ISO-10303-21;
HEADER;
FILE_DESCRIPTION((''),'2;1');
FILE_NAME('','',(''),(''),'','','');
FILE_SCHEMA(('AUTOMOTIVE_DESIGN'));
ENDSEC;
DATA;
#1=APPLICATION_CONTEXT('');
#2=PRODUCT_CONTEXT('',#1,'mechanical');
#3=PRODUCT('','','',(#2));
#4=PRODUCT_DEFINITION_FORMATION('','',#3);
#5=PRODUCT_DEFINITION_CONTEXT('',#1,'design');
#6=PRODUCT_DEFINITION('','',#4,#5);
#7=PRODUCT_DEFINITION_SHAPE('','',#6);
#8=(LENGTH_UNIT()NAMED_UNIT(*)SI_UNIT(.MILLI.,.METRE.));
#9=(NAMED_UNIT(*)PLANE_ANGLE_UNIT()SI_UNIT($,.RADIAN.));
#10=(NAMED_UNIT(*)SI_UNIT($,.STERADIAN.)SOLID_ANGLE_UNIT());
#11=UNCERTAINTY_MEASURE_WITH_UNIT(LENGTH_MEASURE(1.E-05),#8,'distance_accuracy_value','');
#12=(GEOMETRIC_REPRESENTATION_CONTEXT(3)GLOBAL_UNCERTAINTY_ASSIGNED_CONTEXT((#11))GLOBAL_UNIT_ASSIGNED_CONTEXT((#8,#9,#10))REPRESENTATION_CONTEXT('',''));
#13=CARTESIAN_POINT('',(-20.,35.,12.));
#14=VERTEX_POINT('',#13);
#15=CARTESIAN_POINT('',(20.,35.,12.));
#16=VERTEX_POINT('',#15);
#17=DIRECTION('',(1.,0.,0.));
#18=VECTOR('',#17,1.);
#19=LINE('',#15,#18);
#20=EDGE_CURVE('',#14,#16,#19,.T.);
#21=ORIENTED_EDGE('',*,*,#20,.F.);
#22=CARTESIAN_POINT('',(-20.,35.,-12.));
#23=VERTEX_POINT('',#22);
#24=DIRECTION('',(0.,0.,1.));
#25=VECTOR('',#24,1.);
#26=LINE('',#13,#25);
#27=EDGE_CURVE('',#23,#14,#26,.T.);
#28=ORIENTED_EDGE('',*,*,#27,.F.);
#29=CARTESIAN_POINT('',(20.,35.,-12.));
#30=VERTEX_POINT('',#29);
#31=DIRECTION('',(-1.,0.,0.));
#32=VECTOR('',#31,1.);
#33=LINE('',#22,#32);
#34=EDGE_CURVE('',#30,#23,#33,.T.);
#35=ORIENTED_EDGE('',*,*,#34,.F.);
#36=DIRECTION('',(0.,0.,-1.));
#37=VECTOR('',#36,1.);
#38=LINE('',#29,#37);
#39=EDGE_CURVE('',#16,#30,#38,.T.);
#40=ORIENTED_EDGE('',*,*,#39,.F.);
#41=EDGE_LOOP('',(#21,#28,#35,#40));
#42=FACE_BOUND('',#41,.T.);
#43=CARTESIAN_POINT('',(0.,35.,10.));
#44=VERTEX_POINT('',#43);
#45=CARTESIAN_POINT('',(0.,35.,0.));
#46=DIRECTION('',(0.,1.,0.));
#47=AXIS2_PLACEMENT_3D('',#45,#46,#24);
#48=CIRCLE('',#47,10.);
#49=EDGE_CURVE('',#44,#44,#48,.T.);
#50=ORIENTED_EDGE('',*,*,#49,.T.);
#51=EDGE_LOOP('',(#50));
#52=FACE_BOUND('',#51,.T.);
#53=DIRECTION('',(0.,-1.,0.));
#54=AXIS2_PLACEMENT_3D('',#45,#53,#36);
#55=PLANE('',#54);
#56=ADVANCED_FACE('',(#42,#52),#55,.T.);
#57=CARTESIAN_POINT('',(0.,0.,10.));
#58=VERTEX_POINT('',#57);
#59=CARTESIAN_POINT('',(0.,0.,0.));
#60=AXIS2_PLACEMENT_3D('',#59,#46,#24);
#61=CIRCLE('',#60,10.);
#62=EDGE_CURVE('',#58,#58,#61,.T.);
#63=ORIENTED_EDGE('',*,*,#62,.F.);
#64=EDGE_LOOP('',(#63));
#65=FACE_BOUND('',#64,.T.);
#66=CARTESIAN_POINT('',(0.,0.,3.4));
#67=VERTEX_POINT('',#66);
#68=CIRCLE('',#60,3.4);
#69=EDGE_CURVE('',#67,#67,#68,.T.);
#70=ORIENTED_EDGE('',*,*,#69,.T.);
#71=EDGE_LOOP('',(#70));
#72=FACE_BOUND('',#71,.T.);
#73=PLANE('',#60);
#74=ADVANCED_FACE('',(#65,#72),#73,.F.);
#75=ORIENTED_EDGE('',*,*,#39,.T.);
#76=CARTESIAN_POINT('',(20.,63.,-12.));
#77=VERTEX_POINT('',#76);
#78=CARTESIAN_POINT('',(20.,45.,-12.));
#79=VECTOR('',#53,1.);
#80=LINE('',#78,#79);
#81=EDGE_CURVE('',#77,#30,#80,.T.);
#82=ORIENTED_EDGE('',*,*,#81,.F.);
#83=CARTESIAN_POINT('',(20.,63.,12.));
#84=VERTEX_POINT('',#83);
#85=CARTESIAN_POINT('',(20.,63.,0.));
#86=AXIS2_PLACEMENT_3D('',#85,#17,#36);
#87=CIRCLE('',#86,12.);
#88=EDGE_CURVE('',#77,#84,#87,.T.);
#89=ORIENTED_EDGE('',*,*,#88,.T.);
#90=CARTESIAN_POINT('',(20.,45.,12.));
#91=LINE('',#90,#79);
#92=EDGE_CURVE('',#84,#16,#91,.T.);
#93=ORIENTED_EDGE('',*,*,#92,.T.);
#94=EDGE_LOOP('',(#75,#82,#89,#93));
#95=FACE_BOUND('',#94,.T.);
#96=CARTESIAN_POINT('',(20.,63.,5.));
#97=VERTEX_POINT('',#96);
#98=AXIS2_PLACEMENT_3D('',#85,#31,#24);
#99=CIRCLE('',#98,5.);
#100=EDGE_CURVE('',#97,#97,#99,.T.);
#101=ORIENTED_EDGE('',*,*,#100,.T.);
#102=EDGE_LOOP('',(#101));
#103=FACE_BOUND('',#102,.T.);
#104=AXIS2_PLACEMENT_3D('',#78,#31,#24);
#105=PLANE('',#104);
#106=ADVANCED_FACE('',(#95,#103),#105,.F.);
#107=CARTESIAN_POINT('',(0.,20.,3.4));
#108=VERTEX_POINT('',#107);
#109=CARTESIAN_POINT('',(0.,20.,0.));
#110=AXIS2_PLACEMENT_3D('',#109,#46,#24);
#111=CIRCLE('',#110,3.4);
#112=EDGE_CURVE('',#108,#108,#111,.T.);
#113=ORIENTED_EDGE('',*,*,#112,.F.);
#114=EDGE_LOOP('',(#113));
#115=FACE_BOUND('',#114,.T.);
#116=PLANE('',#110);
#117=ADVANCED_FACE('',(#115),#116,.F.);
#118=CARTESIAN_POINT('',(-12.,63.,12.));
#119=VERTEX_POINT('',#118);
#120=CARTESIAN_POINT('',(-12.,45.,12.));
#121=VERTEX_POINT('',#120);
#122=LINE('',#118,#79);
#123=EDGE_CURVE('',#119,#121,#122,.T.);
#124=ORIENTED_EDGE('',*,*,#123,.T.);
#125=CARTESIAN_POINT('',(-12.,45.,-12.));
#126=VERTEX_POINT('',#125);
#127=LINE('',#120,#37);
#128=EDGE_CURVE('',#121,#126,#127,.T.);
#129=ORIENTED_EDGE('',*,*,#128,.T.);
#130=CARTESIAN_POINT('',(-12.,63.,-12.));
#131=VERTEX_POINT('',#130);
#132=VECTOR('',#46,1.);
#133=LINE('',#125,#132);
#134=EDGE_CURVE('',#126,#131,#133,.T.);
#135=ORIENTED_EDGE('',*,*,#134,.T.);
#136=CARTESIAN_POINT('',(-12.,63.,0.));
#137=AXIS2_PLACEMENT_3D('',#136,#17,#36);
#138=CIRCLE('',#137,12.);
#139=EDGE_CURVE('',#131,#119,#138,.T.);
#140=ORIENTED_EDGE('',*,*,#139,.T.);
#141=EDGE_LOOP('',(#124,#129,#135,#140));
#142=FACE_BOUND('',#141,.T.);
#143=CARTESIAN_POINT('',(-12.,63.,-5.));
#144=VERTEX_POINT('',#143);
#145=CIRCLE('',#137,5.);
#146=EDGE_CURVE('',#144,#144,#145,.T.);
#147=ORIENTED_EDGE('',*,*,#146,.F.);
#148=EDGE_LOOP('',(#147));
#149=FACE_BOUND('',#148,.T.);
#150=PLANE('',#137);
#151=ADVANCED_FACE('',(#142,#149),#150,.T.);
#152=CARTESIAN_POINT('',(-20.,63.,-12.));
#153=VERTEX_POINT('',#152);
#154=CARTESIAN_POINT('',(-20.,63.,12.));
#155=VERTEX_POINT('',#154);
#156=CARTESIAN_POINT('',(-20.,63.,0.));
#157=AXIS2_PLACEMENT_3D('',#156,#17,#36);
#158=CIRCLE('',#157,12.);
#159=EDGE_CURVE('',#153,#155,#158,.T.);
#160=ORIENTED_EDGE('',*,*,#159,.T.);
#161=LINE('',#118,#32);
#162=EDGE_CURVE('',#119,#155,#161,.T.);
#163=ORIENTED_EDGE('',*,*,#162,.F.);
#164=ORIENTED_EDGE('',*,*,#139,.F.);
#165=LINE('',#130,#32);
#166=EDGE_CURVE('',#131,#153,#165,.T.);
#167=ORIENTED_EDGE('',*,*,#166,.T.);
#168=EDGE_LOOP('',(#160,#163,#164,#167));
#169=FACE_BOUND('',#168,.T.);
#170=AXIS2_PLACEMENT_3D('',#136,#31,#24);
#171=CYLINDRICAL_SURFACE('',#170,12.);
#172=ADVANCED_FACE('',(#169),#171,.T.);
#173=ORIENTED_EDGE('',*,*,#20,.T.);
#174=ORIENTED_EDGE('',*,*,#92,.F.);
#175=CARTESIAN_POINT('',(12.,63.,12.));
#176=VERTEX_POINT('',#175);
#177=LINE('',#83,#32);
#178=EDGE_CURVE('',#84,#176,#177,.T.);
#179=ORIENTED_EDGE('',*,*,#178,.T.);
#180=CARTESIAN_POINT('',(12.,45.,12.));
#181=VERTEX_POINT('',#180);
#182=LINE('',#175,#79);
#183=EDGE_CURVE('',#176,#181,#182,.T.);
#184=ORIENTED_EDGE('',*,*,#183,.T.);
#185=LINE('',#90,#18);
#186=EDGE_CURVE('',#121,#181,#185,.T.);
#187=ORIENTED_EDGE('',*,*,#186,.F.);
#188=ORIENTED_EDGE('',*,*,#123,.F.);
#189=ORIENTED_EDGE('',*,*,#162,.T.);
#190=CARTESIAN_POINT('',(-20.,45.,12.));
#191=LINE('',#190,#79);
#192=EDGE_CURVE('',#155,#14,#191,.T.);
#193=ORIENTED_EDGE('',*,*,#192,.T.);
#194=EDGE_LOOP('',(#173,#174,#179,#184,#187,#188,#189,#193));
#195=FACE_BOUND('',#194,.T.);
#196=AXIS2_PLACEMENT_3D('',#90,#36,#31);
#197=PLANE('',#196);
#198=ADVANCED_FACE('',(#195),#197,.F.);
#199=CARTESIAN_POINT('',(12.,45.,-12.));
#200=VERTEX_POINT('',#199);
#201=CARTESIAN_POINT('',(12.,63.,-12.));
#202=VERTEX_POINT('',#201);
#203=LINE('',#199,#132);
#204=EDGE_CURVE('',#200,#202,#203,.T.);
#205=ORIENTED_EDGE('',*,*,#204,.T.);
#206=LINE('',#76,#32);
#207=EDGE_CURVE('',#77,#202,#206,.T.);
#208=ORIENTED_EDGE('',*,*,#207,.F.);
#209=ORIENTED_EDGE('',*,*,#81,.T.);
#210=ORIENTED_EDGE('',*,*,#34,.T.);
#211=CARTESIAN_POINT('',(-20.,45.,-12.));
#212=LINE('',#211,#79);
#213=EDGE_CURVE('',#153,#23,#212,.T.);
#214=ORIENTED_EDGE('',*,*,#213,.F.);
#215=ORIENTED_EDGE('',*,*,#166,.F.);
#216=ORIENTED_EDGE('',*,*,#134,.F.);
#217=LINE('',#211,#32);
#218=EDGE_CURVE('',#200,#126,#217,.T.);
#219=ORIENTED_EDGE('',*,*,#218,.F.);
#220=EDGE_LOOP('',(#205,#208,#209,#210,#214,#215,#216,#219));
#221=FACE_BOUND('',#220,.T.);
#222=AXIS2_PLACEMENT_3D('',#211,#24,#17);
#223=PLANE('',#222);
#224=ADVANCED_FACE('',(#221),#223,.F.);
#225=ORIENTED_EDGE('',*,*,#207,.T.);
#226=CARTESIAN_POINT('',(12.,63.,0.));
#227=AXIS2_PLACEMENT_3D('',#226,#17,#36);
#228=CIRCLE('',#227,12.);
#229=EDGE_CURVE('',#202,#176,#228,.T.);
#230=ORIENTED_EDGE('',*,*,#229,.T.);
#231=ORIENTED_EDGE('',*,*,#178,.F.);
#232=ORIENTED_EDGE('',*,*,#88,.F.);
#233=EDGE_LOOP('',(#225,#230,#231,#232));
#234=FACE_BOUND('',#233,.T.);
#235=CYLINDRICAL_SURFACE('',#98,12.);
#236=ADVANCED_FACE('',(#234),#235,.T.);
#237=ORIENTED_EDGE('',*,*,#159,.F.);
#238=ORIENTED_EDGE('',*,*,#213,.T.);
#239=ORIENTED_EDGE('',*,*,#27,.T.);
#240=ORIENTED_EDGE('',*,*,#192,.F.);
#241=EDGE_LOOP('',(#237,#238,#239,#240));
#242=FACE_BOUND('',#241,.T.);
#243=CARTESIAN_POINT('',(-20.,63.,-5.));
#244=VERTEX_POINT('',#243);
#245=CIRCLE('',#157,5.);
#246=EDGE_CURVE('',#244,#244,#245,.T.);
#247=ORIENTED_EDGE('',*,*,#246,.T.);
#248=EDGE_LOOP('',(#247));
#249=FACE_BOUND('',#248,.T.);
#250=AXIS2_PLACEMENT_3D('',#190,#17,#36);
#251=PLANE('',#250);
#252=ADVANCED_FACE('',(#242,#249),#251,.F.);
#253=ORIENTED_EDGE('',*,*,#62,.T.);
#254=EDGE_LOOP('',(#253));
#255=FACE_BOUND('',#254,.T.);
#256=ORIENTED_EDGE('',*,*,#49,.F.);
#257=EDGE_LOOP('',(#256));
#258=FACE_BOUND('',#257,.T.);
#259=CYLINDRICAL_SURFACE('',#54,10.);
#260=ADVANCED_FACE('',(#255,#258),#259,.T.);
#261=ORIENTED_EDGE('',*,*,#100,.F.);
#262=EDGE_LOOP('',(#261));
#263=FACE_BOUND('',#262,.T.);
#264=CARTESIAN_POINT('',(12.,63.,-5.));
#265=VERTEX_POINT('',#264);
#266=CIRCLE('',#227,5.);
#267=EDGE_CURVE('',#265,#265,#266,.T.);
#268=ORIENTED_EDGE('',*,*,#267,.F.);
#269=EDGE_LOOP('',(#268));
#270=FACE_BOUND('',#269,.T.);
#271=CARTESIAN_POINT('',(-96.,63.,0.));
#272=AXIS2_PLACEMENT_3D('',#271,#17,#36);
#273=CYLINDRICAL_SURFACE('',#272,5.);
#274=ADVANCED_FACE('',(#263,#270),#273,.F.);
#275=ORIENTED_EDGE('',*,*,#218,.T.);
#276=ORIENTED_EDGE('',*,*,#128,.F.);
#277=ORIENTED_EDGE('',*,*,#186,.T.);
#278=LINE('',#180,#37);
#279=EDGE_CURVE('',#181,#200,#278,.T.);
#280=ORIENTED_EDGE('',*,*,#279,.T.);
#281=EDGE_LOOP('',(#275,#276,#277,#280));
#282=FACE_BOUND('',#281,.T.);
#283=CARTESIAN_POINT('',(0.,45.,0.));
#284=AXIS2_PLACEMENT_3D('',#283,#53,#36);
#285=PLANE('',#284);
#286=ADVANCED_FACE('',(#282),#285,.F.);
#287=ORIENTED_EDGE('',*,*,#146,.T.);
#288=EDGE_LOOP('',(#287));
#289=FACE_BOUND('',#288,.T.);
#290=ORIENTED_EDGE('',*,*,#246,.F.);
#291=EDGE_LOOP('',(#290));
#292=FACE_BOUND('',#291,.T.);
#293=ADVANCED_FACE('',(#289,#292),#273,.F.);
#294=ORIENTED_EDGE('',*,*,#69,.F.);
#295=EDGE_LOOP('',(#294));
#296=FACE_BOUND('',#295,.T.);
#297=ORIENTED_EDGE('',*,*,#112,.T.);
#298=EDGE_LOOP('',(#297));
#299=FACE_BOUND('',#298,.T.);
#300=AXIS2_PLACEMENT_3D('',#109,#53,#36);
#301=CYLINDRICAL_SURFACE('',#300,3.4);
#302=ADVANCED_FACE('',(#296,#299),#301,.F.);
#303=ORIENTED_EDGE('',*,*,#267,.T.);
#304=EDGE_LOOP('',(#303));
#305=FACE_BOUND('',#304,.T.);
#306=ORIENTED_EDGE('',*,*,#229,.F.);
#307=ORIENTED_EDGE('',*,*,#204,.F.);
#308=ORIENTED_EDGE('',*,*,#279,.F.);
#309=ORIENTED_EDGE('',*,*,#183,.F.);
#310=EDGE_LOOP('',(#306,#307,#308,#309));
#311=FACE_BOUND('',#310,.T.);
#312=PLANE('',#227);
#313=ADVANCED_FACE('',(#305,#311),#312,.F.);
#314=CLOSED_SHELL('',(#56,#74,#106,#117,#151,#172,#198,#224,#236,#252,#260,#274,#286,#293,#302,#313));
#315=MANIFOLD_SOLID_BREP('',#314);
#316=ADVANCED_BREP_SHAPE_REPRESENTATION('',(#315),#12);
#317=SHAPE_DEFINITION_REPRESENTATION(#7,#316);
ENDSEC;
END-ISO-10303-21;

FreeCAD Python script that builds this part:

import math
import FreeCAD as App
import Part
import Sketcher
from FreeCAD import Vector


def add_polygon(sketch, points):
    """Adds a closed chain of lines whose ends are joined by coincident constraints."""
    first, n = sketch.GeometryCount, len(points)
    for a, b in zip(points, points[1:] + points[:1]):
        sketch.addGeometry(Part.LineSegment(App.Vector(*a, 0), App.Vector(*b, 0)), False)
    for i in range(n):
        sketch.addConstraint(Sketcher.Constraint("Coincident", first + i, 2, first + (i + 1) % n, 1))

doc = App.newDocument("Part")
body = doc.addObject("PartDesign::Body", "Body")

# Sketch on XZ plane
sketch1 = doc.addObject("Sketcher::SketchObject", "Sketch")
body.addObject(sketch1)
sketch1.AttachmentSupport = (doc.XZ_Plane, [""])
sketch1.MapMode = "FlatFace"
sketch1.addGeometry(Part.Circle(Vector(0, 0, 0), Vector(0, 0, 1), 10), False)
sketch1.addConstraint([
    Sketcher.Constraint("Coincident", 0, 3, -1, 1),
    Sketcher.Constraint("Diameter", 0, 20.0),
])
pad1 = doc.addObject("PartDesign::Pad", "Pad")
body.addObject(pad1)
pad1.Profile = sketch1
pad1.Length = 35
pad1.Reversed = True

# Sketch on XZ plane
sketch2 = doc.addObject("Sketcher::SketchObject", "Sketch001")
body.addObject(sketch2)
sketch2.AttachmentSupport = (doc.XZ_Plane, [""])
sketch2.MapMode = "FlatFace"
sketch2.AttachmentOffset = App.Placement(Vector(0, 0, -35), App.Rotation())
add_polygon(sketch2, [(-20, -12), (-20, 12), (20, 12), (20, -12)])  # lines 0-3
sketch2.addConstraint([
    Sketcher.Constraint("Vertical", 0),
    Sketcher.Constraint("Horizontal", 1),
    Sketcher.Constraint("Vertical", 2),
    Sketcher.Constraint("Horizontal", 3),
    Sketcher.Constraint("Symmetric", 0, 2, 2, 2, -1, 1),
    Sketcher.Constraint("DistanceX", 1, 1, 1, 2, 40.0),
    Sketcher.Constraint("DistanceY", 0, 1, 0, 2, 24.0),
])
pad2 = doc.addObject("PartDesign::Pad", "Pad001")
body.addObject(pad2)
pad2.Profile = sketch2
pad2.Length = 10
pad2.Reversed = True

# Sketch on YZ plane
sketch3 = doc.addObject("Sketcher::SketchObject", "Sketch002")
body.addObject(sketch3)
sketch3.AttachmentSupport = (doc.YZ_Plane, [""])
sketch3.MapMode = "FlatFace"
sketch3.AttachmentOffset = App.Placement(Vector(0, 0, 12), App.Rotation())
sketch3.addGeometry([
    Part.LineSegment(Vector(45, -12, 0), Vector(63, -12, 0)),
    Part.ArcOfCircle(Part.Circle(Vector(63, 0, 0), Vector(0, 0, 1), 12), math.radians(-90), math.radians(90)),
    Part.LineSegment(Vector(63, 12, 0), Vector(45, 12, 0)),
    Part.LineSegment(Vector(45, 12, 0), Vector(45, -12, 0)),
], False)
sketch3.addConstraint([
    Sketcher.Constraint("Tangent", 0, 2, 1, 1),
    Sketcher.Constraint("Tangent", 1, 2, 2, 1),
    Sketcher.Constraint("Coincident", 2, 2, 3, 1),
    Sketcher.Constraint("Coincident", 3, 2, 0, 1),
    Sketcher.Constraint("Horizontal", 0),
    Sketcher.Constraint("Horizontal", 2),
    Sketcher.Constraint("Vertical", 3),
    Sketcher.Constraint("PointOnObject", 1, 3, -1),
    Sketcher.Constraint("Radius", 1, 12.0),
    Sketcher.Constraint("DistanceX", 0, 1, 0, 2, 18.0),
    Sketcher.Constraint("DistanceX", -1, 1, 1, 3, 63.0),
])
pad3 = doc.addObject("PartDesign::Pad", "Pad002")
body.addObject(pad3)
pad3.Profile = sketch3
pad3.Length = 8

# Sketch on YZ plane
sketch4 = doc.addObject("Sketcher::SketchObject", "Sketch003")
body.addObject(sketch4)
sketch4.AttachmentSupport = (doc.YZ_Plane, [""])
sketch4.MapMode = "FlatFace"
sketch4.AttachmentOffset = App.Placement(Vector(0, 0, -20), App.Rotation())
sketch4.addGeometry([
    Part.LineSegment(Vector(45, -12, 0), Vector(63, -12, 0)),
    Part.ArcOfCircle(Part.Circle(Vector(63, 0, 0), Vector(0, 0, 1), 12), math.radians(-90), math.radians(90)),
    Part.LineSegment(Vector(63, 12, 0), Vector(45, 12, 0)),
    Part.LineSegment(Vector(45, 12, 0), Vector(45, -12, 0)),
], False)
sketch4.addConstraint([
    Sketcher.Constraint("Tangent", 0, 2, 1, 1),
    Sketcher.Constraint("Tangent", 1, 2, 2, 1),
    Sketcher.Constraint("Coincident", 2, 2, 3, 1),
    Sketcher.Constraint("Coincident", 3, 2, 0, 1),
    Sketcher.Constraint("Horizontal", 0),
    Sketcher.Constraint("Horizontal", 2),
    Sketcher.Constraint("Vertical", 3),
    Sketcher.Constraint("PointOnObject", 1, 3, -1),
    Sketcher.Constraint("Radius", 1, 12.0),
    Sketcher.Constraint("DistanceX", 0, 1, 0, 2, 18.0),
    Sketcher.Constraint("DistanceX", -1, 1, 1, 3, 63.0),
])
pad4 = doc.addObject("PartDesign::Pad", "Pad003")
body.addObject(pad4)
pad4.Profile = sketch4
pad4.Length = 8

# Sketch on YZ plane
sketch5 = doc.addObject("Sketcher::SketchObject", "Sketch004")
body.addObject(sketch5)
sketch5.AttachmentSupport = (doc.YZ_Plane, [""])
sketch5.MapMode = "FlatFace"
sketch5.AttachmentOffset = App.Placement(Vector(0, 0, -20), App.Rotation())
sketch5.addGeometry(Part.Circle(Vector(63, 0, 0), Vector(0, 0, 1), 5), False)
sketch5.addConstraint([
    Sketcher.Constraint("PointOnObject", 0, 3, -1),
    Sketcher.Constraint("Diameter", 0, 10.0),
    Sketcher.Constraint("DistanceX", -1, 1, 0, 3, 63.0),
])
pocket1 = doc.addObject("PartDesign::Pocket", "Pocket")
body.addObject(pocket1)
pocket1.Profile = sketch5
pocket1.Length = 152
pocket1.Midplane = True

# Sketch on XZ plane
sketch6 = doc.addObject("Sketcher::SketchObject", "Sketch005")
body.addObject(sketch6)
sketch6.AttachmentSupport = (doc.XZ_Plane, [""])
sketch6.MapMode = "FlatFace"
sketch6.addGeometry(Part.Circle(Vector(0, 0, 0), Vector(0, 0, 1), 3.4), False)
sketch6.addConstraint([
    Sketcher.Constraint("Coincident", 0, 3, -1, 1),
    Sketcher.Constraint("Diameter", 0, 6.8),
])
pocket2 = doc.addObject("PartDesign::Pocket", "Pocket001")
body.addObject(pocket2)
pocket2.Profile = sketch6
pocket2.Length = 20

doc.recompute()
